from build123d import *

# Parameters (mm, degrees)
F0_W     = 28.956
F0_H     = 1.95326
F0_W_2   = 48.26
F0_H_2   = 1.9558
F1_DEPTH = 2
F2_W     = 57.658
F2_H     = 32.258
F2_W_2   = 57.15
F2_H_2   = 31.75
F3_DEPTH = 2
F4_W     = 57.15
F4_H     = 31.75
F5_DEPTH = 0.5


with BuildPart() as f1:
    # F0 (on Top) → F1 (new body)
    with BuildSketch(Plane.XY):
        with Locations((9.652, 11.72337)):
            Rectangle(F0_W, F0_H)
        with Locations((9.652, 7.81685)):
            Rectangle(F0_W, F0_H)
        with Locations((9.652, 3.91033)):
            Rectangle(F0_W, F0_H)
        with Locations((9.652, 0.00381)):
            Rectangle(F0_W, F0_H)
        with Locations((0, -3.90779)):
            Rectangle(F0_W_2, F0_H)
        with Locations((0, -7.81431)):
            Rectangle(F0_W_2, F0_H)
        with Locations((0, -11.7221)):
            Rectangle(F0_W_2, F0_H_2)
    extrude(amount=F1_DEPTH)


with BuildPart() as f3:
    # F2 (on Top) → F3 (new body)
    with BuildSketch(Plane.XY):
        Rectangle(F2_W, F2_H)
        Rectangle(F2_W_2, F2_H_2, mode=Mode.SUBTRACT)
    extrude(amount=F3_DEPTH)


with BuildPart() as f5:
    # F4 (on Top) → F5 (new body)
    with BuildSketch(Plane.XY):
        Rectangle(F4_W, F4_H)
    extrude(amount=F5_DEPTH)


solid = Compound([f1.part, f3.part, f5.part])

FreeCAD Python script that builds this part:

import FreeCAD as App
import Part
import Sketcher

V = App.Vector
Q = App.Units.Quantity

doc = App.newDocument("Part")
body = doc.addObject("PartDesign::Body", "Body")
body.AllowCompound = True

# Sketch on XY plane
sketch1 = body.newObject("Sketcher::SketchObject", "Sketch")
sketch1.AttachmentSupport = (doc.getObject("XY_Plane"), [""])
sketch1.MapMode = "FlatFace"
sketch1.addGeometry(Part.LineSegment(V(-4.826, 12.7, 0), V(-4.826, 10.74674, 0)), False)
sketch1.addGeometry(Part.LineSegment(V(-4.826, 10.74674, 0), V(24.13, 10.74674, 0)), False)
sketch1.addGeometry(Part.LineSegment(V(24.13, 10.74674, 0), V(24.13, 12.7, 0)), False)
sketch1.addGeometry(Part.LineSegment(V(24.13, 12.7, 0), V(-4.826, 12.7, 0)), False)
sketch1.addGeometry(Part.LineSegment(V(-4.826, 8.79348, 0), V(-4.826, 6.84022, 0)), False)
sketch1.addGeometry(Part.LineSegment(V(-4.826, 6.84022, 0), V(24.13, 6.84022, 0)), False)
sketch1.addGeometry(Part.LineSegment(V(24.13, 6.84022, 0), V(24.13, 8.79348, 0)), False)
sketch1.addGeometry(Part.LineSegment(V(24.13, 8.79348, 0), V(-4.826, 8.79348, 0)), False)
sketch1.addGeometry(Part.LineSegment(V(-4.826, 4.88696, 0), V(-4.826, 2.9337, 0)), False)
sketch1.addGeometry(Part.LineSegment(V(-4.826, 2.9337, 0), V(24.13, 2.9337, 0)), False)
sketch1.addGeometry(Part.LineSegment(V(24.13, 2.9337, 0), V(24.13, 4.88696, 0)), False)
sketch1.addGeometry(Part.LineSegment(V(24.13, 4.88696, 0), V(-4.826, 4.88696, 0)), False)
sketch1.addGeometry(Part.LineSegment(V(-4.826, 0.98044, 0), V(-4.826, -0.97282, 0)), False)
sketch1.addGeometry(Part.LineSegment(V(-4.826, -0.97282, 0), V(24.13, -0.97282, 0)), False)
sketch1.addGeometry(Part.LineSegment(V(24.13, -0.97282, 0), V(24.13, 0.98044, 0)), False)
sketch1.addGeometry(Part.LineSegment(V(24.13, 0.98044, 0), V(-4.826, 0.98044, 0)), False)
sketch1.addGeometry(Part.LineSegment(V(-24.13, -2.93116, 0), V(-24.13, -4.88442, 0)), False)
sketch1.addGeometry(Part.LineSegment(V(-24.13, -4.88442, 0), V(24.13, -4.88442, 0)), False)
sketch1.addGeometry(Part.LineSegment(V(24.13, -4.88442, 0), V(24.13, -2.93116, 0)), False)
sketch1.addGeometry(Part.LineSegment(V(24.13, -2.93116, 0), V(-24.13, -2.93116, 0)), False)
sketch1.addGeometry(Part.LineSegment(V(-24.13, -6.83768, 0), V(-24.13, -8.79094, 0)), False)
sketch1.addGeometry(Part.LineSegment(V(-24.13, -8.79094, 0), V(24.13, -8.79094, 0)), False)
sketch1.addGeometry(Part.LineSegment(V(24.13, -8.79094, 0), V(24.13, -6.83768, 0)), False)
sketch1.addGeometry(Part.LineSegment(V(24.13, -6.83768, 0), V(-24.13, -6.83768, 0)), False)
sketch1.addGeometry(Part.LineSegment(V(-24.13, -10.7442, 0), V(-24.13, -12.7, 0)), False)
sketch1.addGeometry(Part.LineSegment(V(-24.13, -12.7, 0), V(24.13, -12.7, 0)), False)
sketch1.addGeometry(Part.LineSegment(V(24.13, -12.7, 0), V(24.13, -10.7442, 0)), False)
sketch1.addGeometry(Part.LineSegment(V(24.13, -10.7442, 0), V(-24.13, -10.7442, 0)), False)
sketch1.addConstraint(Sketcher.Constraint("Coincident", 0, 2, 1, 1))
sketch1.addConstraint(Sketcher.Constraint("Coincident", 1, 2, 2, 1))
sketch1.addConstraint(Sketcher.Constraint("Coincident", 2, 2, 3, 1))
sketch1.addConstraint(Sketcher.Constraint("Coincident", 3, 2, 0, 1))
sketch1.addConstraint(Sketcher.Constraint("Coincident", 4, 2, 5, 1))
sketch1.addConstraint(Sketcher.Constraint("Coincident", 5, 2, 6, 1))
sketch1.addConstraint(Sketcher.Constraint("Coincident", 6, 2, 7, 1))
sketch1.addConstraint(Sketcher.Constraint("Coincident", 7, 2, 4, 1))
sketch1.addConstraint(Sketcher.Constraint("Coincident", 8, 2, 9, 1))
sketch1.addConstraint(Sketcher.Constraint("Coincident", 9, 2, 10, 1))
sketch1.addConstraint(Sketcher.Constraint("Coincident", 10, 2, 11, 1))
sketch1.addConstraint(Sketcher.Constraint("Coincident", 11, 2, 8, 1))
sketch1.addConstraint(Sketcher.Constraint("Coincident", 12, 2, 13, 1))
sketch1.addConstraint(Sketcher.Constraint("Coincident", 13, 2, 14, 1))
sketch1.addConstraint(Sketcher.Constraint("Coincident", 14, 2, 15, 1))
sketch1.addConstraint(Sketcher.Constraint("Coincident", 15, 2, 12, 1))
sketch1.addConstraint(Sketcher.Constraint("Coincident", 16, 2, 17, 1))
sketch1.addConstraint(Sketcher.Constraint("Coincident", 17, 2, 18, 1))
sketch1.addConstraint(Sketcher.Constraint("Coincident", 18, 2, 19, 1))
sketch1.addConstraint(Sketcher.Constraint("Coincident", 19, 2, 16, 1))
sketch1.addConstraint(Sketcher.Constraint("Coincident", 20, 2, 21, 1))
sketch1.addConstraint(Sketcher.Constraint("Coincident", 21, 2, 22, 1))
sketch1.addConstraint(Sketcher.Constraint("Coincident", 22, 2, 23, 1))
sketch1.addConstraint(Sketcher.Constraint("Coincident", 23, 2, 20, 1))
sketch1.addConstraint(Sketcher.Constraint("Coincident", 24, 2, 25, 1))
sketch1.addConstraint(Sketcher.Constraint("Coincident", 25, 2, 26, 1))
sketch1.addConstraint(Sketcher.Constraint("Coincident", 26, 2, 27, 1))
sketch1.addConstraint(Sketcher.Constraint("Coincident", 27, 2, 24, 1))
sketch1.addConstraint(Sketcher.Constraint("Vertical", 0))
sketch1.addConstraint(Sketcher.Constraint("Horizontal", 1))
sketch1.addConstraint(Sketcher.Constraint("Vertical", 2))
sketch1.addConstraint(Sketcher.Constraint("Horizontal", 3))
sketch1.addConstraint(Sketcher.Constraint("Vertical", 4))
sketch1.addConstraint(Sketcher.Constraint("Horizontal", 5))
sketch1.addConstraint(Sketcher.Constraint("Vertical", 6))
sketch1.addConstraint(Sketcher.Constraint("Horizontal", 7))
sketch1.addConstraint(Sketcher.Constraint("Vertical", 8))
sketch1.addConstraint(Sketcher.Constraint("Horizontal", 9))
sketch1.addConstraint(Sketcher.Constraint("Vertical", 10))
sketch1.addConstraint(Sketcher.Constraint("Horizontal", 11))
sketch1.addConstraint(Sketcher.Constraint("Vertical", 12))
sketch1.addConstraint(Sketcher.Constraint("Horizontal", 13))
sketch1.addConstraint(Sketcher.Constraint("Vertical", 14))
sketch1.addConstraint(Sketcher.Constraint("Horizontal", 15))
sketch1.addConstraint(Sketcher.Constraint("Vertical", 16))
sketch1.addConstraint(Sketcher.Constraint("Horizontal", 17))
sketch1.addConstraint(Sketcher.Constraint("Vertical", 18))
sketch1.addConstraint(Sketcher.Constraint("Horizontal", 19))
sketch1.addConstraint(Sketcher.Constraint("Vertical", 20))
sketch1.addConstraint(Sketcher.Constraint("Horizontal", 21))
sketch1.addConstraint(Sketcher.Constraint("Vertical", 22))
sketch1.addConstraint(Sketcher.Constraint("Horizontal", 23))
sketch1.addConstraint(Sketcher.Constraint("Vertical", 24))
sketch1.addConstraint(Sketcher.Constraint("Horizontal", 25))
sketch1.addConstraint(Sketcher.Constraint("Vertical", 26))
sketch1.addConstraint(Sketcher.Constraint("Horizontal", 27))
sketch1.addConstraint(Sketcher.Constraint("Symmetric", 2, 2, 24, 2, -1, 1))
sketch1.addConstraint(Sketcher.Constraint("Vertical", 3, 2, 4, 2))
sketch1.addConstraint(Sketcher.Constraint("Vertical", 2, 2, 5, 2))
sketch1.addConstraint(Sketcher.Constraint("Vertical", 7, 2, 8, 2))
sketch1.addConstraint(Sketcher.Constraint("Vertical", 6, 2, 9, 2))
sketch1.addConstraint(Sketcher.Constraint("Vertical", 11, 2, 12, 2))
sketch1.addConstraint(Sketcher.Constraint("Vertical", 10, 2, 13, 2))
sketch1.addConstraint(Sketcher.Constraint("Vertical", 14, 2, 17, 2))
sketch1.addConstraint(Sketcher.Constraint("Vertical", 19, 2, 20, 2))
sketch1.addConstraint(Sketcher.Constraint("Vertical", 18, 2, 21, 2))
sketch1.addConstraint(Sketcher.Constraint("Vertical", 23, 2, 24, 2))
sketch1.addConstraint(Sketcher.Constraint("Vertical", 22, 2, 25, 2))
sketch1.addConstraint(Sketcher.Constraint("Equal", 2, 4))
sketch1.addConstraint(Sketcher.Constraint("Equal", 6, 8))
sketch1.addConstraint(Sketcher.Constraint("Equal", 10, 12))
sketch1.addConstraint(Sketcher.Constraint("Equal", 14, 16))
sketch1.addConstraint(Sketcher.Constraint("Equal", 18, 20))
sketch1.addConstraint(Sketcher.Constraint("DistanceX", 17, 1, 17, 2, Q("1.9 in")))
sketch1.addConstraint(Sketcher.Constraint("DistanceX", 1, 1, 1, 2, Q("1.14 in")))
sketch1.addConstraint(Sketcher.Constraint("DistanceY", -1, 1, 2, 2, Q("0.5 in")))
sketch1.addConstraint(Sketcher.Constraint("DistanceY", 24, 2, 24, 1, Q("0.077 in")))
sketch1.addConstraint(Sketcher.Constraint("DistanceY", 0, 2, 0, 1, Q("0.0769 in")))
sketch1.addConstraint(Sketcher.Constraint("DistanceY", 16, 2, 12, 2, Q("0.154 in")))
sketch1.addConstraint(Sketcher.Constraint("DistanceY", -1, 1, 4, 2, Q("0.2693 in")))
sketch1.addConstraint(Sketcher.Constraint("DistanceY", -1, 1, 8, 2, Q("0.1155 in")))
sketch1.addConstraint(Sketcher.Constraint("DistanceY", 12, 2, -1, 1, Q("0.0383 in")))
sketch1.addConstraint(Sketcher.Constraint("DistanceY", 20, 2, -1, 1, Q("0.3461 in")))
pad1 = body.newObject("PartDesign::Pad", "Pad")
pad1.Profile = sketch1
pad1.Length = 2
body2 = doc.addObject("PartDesign::Body", "Body001")

# Sketch on XY plane
sketch2 = body2.newObject("Sketcher::SketchObject", "Sketch001")
sketch2.AttachmentSupport = (doc.getObject("XY_Plane001"), [""])
sketch2.MapMode = "FlatFace"
sketch2.addGeometry(Part.LineSegment(V(-28.829, 16.129, 0), V(-28.829, -16.129, 0)), False)
sketch2.addGeometry(Part.LineSegment(V(-28.829, -16.129, 0), V(28.829, -16.129, 0)), False)
sketch2.addGeometry(Part.LineSegment(V(28.829, -16.129, 0), V(28.829, 16.129, 0)), False)
sketch2.addGeometry(Part.LineSegment(V(28.829, 16.129, 0), V(-28.829, 16.129, 0)), False)
sketch2.addGeometry(Part.LineSegment(V(28.575, -15.875, 0), V(-28.575, -15.875, 0)), False)
sketch2.addGeometry(Part.LineSegment(V(-28.575, -15.875, 0), V(-28.575, 15.875, 0)), False)
sketch2.addGeometry(Part.LineSegment(V(-28.575, 15.875, 0), V(28.575, 15.875, 0)), False)
sketch2.addGeometry(Part.LineSegment(V(28.575, 15.875, 0), V(28.575, -15.875, 0)), False)
sketch2.addConstraint(Sketcher.Constraint("Coincident", 0, 2, 1, 1))
sketch2.addConstraint(Sketcher.Constraint("Coincident", 1, 2, 2, 1))
sketch2.addConstraint(Sketcher.Constraint("Coincident", 2, 2, 3, 1))
sketch2.addConstraint(Sketcher.Constraint("Coincident", 3, 2, 0, 1))
sketch2.addConstraint(Sketcher.Constraint("Coincident", 4, 2, 5, 1))
sketch2.addConstraint(Sketcher.Constraint("Coincident", 5, 2, 6, 1))
sketch2.addConstraint(Sketcher.Constraint("Coincident", 6, 2, 7, 1))
sketch2.addConstraint(Sketcher.Constraint("Coincident", 7, 2, 4, 1))
sketch2.addConstraint(Sketcher.Constraint("Vertical", 0))
sketch2.addConstraint(Sketcher.Constraint("Horizontal", 1))
sketch2.addConstraint(Sketcher.Constraint("Vertical", 2))
sketch2.addConstraint(Sketcher.Constraint("Horizontal", 3))
sketch2.addConstraint(Sketcher.Constraint("Horizontal", 4))
sketch2.addConstraint(Sketcher.Constraint("Vertical", 5))
sketch2.addConstraint(Sketcher.Constraint("Horizontal", 6))
sketch2.addConstraint(Sketcher.Constraint("Vertical", 7))
sketch2.addConstraint(Sketcher.Constraint("Symmetric", 0, 2, 2, 2, -1, 1))
sketch2.addConstraint(Sketcher.Constraint("Symmetric", 4, 2, 6, 2, -1, 1))
sketch2.addConstraint(Sketcher.Constraint("DistanceX", 1, 1, 1, 2, Q("2.27 in")))
sketch2.addConstraint(Sketcher.Constraint("DistanceX", 4, 2, 4, 1, Q("2.25 in")))
sketch2.addConstraint(Sketcher.Constraint("DistanceY", 0, 2, 0, 1, Q("1.27 in")))
sketch2.addConstraint(Sketcher.Constraint("DistanceY", 5, 1, 5, 2, Q("1.25 in")))
pad2 = body2.newObject("PartDesign::Pad", "Pad001")
pad2.Profile = sketch2
pad2.Length = 2
body3 = doc.addObject("PartDesign::Body", "Body002")

# Sketch on XY plane
sketch3 = body3.newObject("Sketcher::SketchObject", "Sketch002")
sketch3.AttachmentSupport = (doc.getObject("XY_Plane002"), [""])
sketch3.MapMode = "FlatFace"
sketch3.addGeometry(Part.LineSegment(V(-28.575, 15.875, 0), V(-28.575, -15.875, 0)), False)
sketch3.addGeometry(Part.LineSegment(V(-28.575, -15.875, 0), V(28.575, -15.875, 0)), False)
sketch3.addGeometry(Part.LineSegment(V(28.575, -15.875, 0), V(28.575, 15.875, 0)), False)
sketch3.addGeometry(Part.LineSegment(V(28.575, 15.875, 0), V(-28.575, 15.875, 0)), False)
sketch3.addConstraint(Sketcher.Constraint("Coincident", 0, 2, 1, 1))
sketch3.addConstraint(Sketcher.Constraint("Coincident", 1, 2, 2, 1))
sketch3.addConstraint(Sketcher.Constraint("Coincident", 2, 2, 3, 1))
sketch3.addConstraint(Sketcher.Constraint("Coincident", 3, 2, 0, 1))
sketch3.addConstraint(Sketcher.Constraint("Vertical", 0))
sketch3.addConstraint(Sketcher.Constraint("Horizontal", 1))
sketch3.addConstraint(Sketcher.Constraint("Vertical", 2))
sketch3.addConstraint(Sketcher.Constraint("Horizontal", 3))
sketch3.addConstraint(Sketcher.Constraint("Symmetric", 0, 2, 2, 2, -1, 1))
sketch3.addConstraint(Sketcher.Constraint("DistanceX", 1, 1, 1, 2, Q("2.25 in")))
sketch3.addConstraint(Sketcher.Constraint("DistanceY", 0, 2, 0, 1, Q("1.25 in")))
pad3 = body3.newObject("PartDesign::Pad", "Pad002")
pad3.Profile = sketch3
pad3.Length = 0.5

doc.recompute()
